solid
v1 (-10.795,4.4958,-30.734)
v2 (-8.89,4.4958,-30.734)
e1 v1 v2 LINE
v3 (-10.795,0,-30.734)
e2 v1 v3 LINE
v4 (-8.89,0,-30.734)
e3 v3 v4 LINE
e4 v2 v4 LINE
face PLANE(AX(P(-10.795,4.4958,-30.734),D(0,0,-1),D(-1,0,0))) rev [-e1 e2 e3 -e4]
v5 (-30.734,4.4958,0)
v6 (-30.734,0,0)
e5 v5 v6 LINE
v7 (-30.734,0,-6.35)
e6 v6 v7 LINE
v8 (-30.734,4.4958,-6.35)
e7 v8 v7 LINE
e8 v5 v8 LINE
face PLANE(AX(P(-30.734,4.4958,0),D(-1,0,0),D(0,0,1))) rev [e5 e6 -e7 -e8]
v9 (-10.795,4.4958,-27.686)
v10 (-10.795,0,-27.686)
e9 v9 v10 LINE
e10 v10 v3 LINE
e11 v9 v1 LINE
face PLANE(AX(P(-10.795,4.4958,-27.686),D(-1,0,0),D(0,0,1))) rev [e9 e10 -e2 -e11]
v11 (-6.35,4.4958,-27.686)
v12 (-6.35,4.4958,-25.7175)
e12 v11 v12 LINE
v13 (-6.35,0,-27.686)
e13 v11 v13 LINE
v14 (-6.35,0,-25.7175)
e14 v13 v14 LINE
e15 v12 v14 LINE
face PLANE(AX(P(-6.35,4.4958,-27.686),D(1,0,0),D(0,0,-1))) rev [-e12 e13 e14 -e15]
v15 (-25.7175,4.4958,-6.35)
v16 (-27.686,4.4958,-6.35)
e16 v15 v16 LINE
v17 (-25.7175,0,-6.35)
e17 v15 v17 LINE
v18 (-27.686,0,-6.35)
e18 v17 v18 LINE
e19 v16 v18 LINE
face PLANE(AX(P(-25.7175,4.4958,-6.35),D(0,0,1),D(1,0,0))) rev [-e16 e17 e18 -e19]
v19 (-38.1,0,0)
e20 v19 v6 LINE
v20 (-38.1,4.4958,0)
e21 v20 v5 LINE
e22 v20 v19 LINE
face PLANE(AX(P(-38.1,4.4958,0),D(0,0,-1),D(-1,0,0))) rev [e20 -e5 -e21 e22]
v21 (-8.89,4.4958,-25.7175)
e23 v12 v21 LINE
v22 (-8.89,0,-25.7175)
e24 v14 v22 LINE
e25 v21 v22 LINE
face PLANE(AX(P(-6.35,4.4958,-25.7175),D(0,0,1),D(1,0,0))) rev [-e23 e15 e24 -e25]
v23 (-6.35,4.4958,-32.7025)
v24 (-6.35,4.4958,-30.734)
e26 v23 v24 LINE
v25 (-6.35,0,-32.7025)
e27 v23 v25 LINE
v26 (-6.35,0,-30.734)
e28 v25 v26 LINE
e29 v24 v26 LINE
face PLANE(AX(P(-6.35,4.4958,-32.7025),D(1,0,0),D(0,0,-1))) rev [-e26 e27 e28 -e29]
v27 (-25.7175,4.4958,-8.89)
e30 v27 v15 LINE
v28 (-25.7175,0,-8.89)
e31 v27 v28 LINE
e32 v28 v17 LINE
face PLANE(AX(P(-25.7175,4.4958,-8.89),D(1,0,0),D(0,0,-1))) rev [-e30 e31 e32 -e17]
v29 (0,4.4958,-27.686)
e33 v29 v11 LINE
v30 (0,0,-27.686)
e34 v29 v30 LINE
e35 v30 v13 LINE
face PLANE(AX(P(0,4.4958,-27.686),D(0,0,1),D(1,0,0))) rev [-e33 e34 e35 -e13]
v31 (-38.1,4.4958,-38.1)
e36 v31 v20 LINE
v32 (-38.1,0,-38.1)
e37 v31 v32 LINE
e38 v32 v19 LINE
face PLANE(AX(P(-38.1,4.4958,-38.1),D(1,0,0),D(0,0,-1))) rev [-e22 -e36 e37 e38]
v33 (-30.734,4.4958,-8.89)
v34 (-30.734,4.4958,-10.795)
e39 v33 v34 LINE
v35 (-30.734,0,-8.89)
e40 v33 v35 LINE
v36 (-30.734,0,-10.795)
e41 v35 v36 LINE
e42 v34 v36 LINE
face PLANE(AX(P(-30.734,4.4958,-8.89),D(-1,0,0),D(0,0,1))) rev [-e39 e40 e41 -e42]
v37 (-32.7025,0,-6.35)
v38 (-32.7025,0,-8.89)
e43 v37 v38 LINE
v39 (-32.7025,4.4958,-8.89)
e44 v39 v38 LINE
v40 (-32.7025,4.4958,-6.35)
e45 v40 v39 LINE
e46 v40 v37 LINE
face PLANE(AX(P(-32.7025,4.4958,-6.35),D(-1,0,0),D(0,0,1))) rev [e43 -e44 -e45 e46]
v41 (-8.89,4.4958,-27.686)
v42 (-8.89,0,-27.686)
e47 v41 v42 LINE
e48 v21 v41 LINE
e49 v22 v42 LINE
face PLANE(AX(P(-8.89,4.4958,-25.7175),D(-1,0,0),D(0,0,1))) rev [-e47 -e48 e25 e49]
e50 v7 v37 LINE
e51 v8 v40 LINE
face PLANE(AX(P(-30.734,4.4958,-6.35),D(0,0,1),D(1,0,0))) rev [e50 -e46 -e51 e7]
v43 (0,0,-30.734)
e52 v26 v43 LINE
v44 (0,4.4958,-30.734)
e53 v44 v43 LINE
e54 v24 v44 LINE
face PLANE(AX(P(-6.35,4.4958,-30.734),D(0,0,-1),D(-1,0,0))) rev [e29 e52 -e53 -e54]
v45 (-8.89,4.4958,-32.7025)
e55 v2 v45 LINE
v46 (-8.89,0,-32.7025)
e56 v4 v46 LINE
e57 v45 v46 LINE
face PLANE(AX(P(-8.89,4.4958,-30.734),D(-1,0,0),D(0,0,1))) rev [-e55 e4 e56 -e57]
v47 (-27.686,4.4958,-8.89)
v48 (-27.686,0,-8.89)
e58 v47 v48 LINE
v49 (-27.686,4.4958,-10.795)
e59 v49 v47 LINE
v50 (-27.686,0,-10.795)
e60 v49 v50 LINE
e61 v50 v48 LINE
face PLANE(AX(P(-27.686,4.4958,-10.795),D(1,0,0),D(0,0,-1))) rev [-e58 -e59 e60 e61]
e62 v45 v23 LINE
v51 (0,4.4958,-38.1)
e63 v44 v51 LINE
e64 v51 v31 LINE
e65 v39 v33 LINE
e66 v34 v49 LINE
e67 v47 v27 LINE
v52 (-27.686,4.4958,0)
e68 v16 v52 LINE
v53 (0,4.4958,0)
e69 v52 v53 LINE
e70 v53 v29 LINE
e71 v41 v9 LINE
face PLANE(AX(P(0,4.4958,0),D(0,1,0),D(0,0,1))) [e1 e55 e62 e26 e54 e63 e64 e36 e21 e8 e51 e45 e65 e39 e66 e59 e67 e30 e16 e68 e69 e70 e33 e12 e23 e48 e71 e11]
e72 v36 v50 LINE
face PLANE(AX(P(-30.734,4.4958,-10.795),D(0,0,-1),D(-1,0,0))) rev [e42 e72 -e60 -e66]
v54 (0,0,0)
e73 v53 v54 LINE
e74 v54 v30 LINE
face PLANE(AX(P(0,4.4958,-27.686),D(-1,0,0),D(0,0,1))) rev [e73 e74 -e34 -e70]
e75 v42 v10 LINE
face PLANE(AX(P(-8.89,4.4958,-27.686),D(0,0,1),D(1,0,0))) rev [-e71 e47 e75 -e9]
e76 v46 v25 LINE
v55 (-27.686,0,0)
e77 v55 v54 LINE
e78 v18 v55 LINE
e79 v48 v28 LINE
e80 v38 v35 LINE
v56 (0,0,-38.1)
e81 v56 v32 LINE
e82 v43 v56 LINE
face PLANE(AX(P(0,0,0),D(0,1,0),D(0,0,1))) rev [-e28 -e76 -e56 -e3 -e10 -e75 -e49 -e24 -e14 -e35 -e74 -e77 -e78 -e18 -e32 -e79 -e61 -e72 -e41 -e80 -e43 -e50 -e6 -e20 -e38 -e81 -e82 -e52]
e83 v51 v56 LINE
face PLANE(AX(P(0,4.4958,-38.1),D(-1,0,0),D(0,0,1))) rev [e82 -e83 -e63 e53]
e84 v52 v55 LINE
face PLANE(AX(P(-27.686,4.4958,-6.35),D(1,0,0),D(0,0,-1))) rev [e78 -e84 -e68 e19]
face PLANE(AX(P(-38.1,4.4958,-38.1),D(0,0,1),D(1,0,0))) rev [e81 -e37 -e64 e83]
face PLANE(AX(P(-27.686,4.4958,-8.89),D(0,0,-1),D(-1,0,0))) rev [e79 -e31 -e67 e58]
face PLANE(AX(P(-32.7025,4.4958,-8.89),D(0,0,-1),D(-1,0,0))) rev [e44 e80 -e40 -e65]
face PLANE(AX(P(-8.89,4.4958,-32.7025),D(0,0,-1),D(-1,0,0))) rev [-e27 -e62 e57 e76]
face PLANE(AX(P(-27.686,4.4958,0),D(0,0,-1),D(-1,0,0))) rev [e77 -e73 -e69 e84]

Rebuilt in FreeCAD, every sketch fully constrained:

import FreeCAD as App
import Part
import Sketcher
from FreeCAD import Vector
Q = App.Units.Quantity


def add_polygon(sketch, points):
    """Adds a closed chain of lines whose ends are joined by coincident constraints."""
    first, n = sketch.GeometryCount, len(points)
    for a, b in zip(points, points[1:] + points[:1]):
        sketch.addGeometry(Part.LineSegment(App.Vector(*a, 0), App.Vector(*b, 0)), False)
    for i in range(n):
        sketch.addConstraint(Sketcher.Constraint("Coincident", first + i, 2, first + (i + 1) % n, 1))

doc = App.newDocument("Part")
body = doc.addObject("PartDesign::Body", "Body")

# Sketch on XZ plane
sketch1 = body.newObject("Sketcher::SketchObject", "Sketch")
sketch1.AttachmentSupport = (doc.getObject("XZ_Plane"), [""])
sketch1.MapMode = "FlatFace"
add_polygon(sketch1, [(-30.7, 0), (-30.7, -6.3), (-32.7, -6.3), (-32.7, -8.9), (-30.7, -8.9), (-30.7, -10.8), (-27.7, -10.8), (-27.7, -8.9), (-25.7, -8.9), (-25.7, -6.3), (-27.7, -6.3), (-27.7, 0), (0, 0), (0, -27.7), (-6.3, -27.7), (-6.3, -25.7), (-8.9, -25.7), (-8.9, -27.7), (-10.8, -27.7), (-10.8, -30.7), (-8.9, -30.7), (-8.9, -32.7), (-6.3, -32.7), (-6.3, -30.7), (0, -30.7), (0, -38.1), (-38.1, -38.1), (-38.1, 0)])  # lines 0-27
sketch1.addConstraint(Sketcher.Constraint("Vertical", 0))
sketch1.addConstraint(Sketcher.Constraint("Horizontal", 1))
sketch1.addConstraint(Sketcher.Constraint("Vertical", 2))
sketch1.addConstraint(Sketcher.Constraint("Horizontal", 3))
sketch1.addConstraint(Sketcher.Constraint("Vertical", 4))
sketch1.addConstraint(Sketcher.Constraint("Horizontal", 5))
sketch1.addConstraint(Sketcher.Constraint("Vertical", 6))
sketch1.addConstraint(Sketcher.Constraint("Horizontal", 7))
sketch1.addConstraint(Sketcher.Constraint("Vertical", 8))
sketch1.addConstraint(Sketcher.Constraint("Horizontal", 9))
sketch1.addConstraint(Sketcher.Constraint("Vertical", 10))
sketch1.addConstraint(Sketcher.Constraint("Horizontal", 11))
sketch1.addConstraint(Sketcher.Constraint("Vertical", 12))
sketch1.addConstraint(Sketcher.Constraint("Horizontal", 13))
sketch1.addConstraint(Sketcher.Constraint("Vertical", 14))
sketch1.addConstraint(Sketcher.Constraint("Horizontal", 15))
sketch1.addConstraint(Sketcher.Constraint("Vertical", 16))
sketch1.addConstraint(Sketcher.Constraint("Horizontal", 17))
sketch1.addConstraint(Sketcher.Constraint("Vertical", 18))
sketch1.addConstraint(Sketcher.Constraint("Horizontal", 19))
sketch1.addConstraint(Sketcher.Constraint("Vertical", 20))
sketch1.addConstraint(Sketcher.Constraint("Horizontal", 21))
sketch1.addConstraint(Sketcher.Constraint("Vertical", 22))
sketch1.addConstraint(Sketcher.Constraint("Horizontal", 23))
sketch1.addConstraint(Sketcher.Constraint("Vertical", 24))
sketch1.addConstraint(Sketcher.Constraint("Horizontal", 25))
sketch1.addConstraint(Sketcher.Constraint("Vertical", 26))
sketch1.addConstraint(Sketcher.Constraint("Horizontal", 27))
sketch1.addConstraint(Sketcher.Constraint("Coincident", 11, 2, -1, 1))
sketch1.addConstraint(Sketcher.Constraint("PointOnObject", 23, 2, -2))
sketch1.addConstraint(Sketcher.Constraint("PointOnObject", 26, 2, -1))
sketch1.addConstraint(Sketcher.Constraint("Horizontal", 3, 2, 6, 2))
sketch1.addConstraint(Sketcher.Constraint("Horizontal", 1, 2, 8, 2))
sketch1.addConstraint(Sketcher.Constraint("Horizontal", 13, 2, 16, 2))
sketch1.addConstraint(Sketcher.Constraint("Horizontal", 19, 2, 22, 2))
sketch1.addConstraint(Sketcher.Constraint("Vertical", 0, 2, 3, 2))
sketch1.addConstraint(Sketcher.Constraint("Vertical", 6, 2, 9, 2))
sketch1.addConstraint(Sketcher.Constraint("Vertical", 16, 2, 19, 2))
sketch1.addConstraint(Sketcher.Constraint("Vertical", 14, 2, 21, 2))
sketch1.addConstraint(Sketcher.Constraint("Equal", 3, 7))
sketch1.addConstraint(Sketcher.Constraint("Equal", 23, 0))
sketch1.addConstraint(Sketcher.Constraint("Equal", 21, 2))
sketch1.addConstraint(Sketcher.Constraint("Equal", 19, 4))
sketch1.addConstraint(Sketcher.Constraint("Equal", 11, 12))
sketch1.addConstraint(Sketcher.Constraint("Equal", 9, 14))
sketch1.addConstraint(Sketcher.Constraint("Equal", 5, 18))
sketch1.addConstraint(Sketcher.Constraint("Equal", 16, 20))
sketch1.addConstraint(Sketcher.Constraint("Equal", 27, 24))
sketch1.addConstraint(Sketcher.Constraint("DistanceX", 15, 2, 15, 1, Q("0.1 in")))
sketch1.addConstraint(Sketcher.Constraint("DistanceX", 25, 2, 25, 1, Q("1.5 in")))
sketch1.addConstraint(Sketcher.Constraint("DistanceX", 5, 1, 5, 2, Q("0.12 in")))
sketch1.addConstraint(Sketcher.Constraint("DistanceX", 11, 1, 11, 2, Q("1.09 in")))
sketch1.addConstraint(Sketcher.Constraint("DistanceX", 13, 2, 13, 1, Q("0.25 in")))
sketch1.addConstraint(Sketcher.Constraint("DistanceX", 17, 2, 17, 1, Q("0.075 in")))
sketch1.addConstraint(Sketcher.Constraint("DistanceX", 1, 2, 1, 1, Q("0.0775 in")))
pad1 = body.newObject("PartDesign::Pad", "Pad")
pad1.Profile = sketch1
pad1.Length = Q("0.177 in")
pad1.Reversed = True

doc.recompute()
